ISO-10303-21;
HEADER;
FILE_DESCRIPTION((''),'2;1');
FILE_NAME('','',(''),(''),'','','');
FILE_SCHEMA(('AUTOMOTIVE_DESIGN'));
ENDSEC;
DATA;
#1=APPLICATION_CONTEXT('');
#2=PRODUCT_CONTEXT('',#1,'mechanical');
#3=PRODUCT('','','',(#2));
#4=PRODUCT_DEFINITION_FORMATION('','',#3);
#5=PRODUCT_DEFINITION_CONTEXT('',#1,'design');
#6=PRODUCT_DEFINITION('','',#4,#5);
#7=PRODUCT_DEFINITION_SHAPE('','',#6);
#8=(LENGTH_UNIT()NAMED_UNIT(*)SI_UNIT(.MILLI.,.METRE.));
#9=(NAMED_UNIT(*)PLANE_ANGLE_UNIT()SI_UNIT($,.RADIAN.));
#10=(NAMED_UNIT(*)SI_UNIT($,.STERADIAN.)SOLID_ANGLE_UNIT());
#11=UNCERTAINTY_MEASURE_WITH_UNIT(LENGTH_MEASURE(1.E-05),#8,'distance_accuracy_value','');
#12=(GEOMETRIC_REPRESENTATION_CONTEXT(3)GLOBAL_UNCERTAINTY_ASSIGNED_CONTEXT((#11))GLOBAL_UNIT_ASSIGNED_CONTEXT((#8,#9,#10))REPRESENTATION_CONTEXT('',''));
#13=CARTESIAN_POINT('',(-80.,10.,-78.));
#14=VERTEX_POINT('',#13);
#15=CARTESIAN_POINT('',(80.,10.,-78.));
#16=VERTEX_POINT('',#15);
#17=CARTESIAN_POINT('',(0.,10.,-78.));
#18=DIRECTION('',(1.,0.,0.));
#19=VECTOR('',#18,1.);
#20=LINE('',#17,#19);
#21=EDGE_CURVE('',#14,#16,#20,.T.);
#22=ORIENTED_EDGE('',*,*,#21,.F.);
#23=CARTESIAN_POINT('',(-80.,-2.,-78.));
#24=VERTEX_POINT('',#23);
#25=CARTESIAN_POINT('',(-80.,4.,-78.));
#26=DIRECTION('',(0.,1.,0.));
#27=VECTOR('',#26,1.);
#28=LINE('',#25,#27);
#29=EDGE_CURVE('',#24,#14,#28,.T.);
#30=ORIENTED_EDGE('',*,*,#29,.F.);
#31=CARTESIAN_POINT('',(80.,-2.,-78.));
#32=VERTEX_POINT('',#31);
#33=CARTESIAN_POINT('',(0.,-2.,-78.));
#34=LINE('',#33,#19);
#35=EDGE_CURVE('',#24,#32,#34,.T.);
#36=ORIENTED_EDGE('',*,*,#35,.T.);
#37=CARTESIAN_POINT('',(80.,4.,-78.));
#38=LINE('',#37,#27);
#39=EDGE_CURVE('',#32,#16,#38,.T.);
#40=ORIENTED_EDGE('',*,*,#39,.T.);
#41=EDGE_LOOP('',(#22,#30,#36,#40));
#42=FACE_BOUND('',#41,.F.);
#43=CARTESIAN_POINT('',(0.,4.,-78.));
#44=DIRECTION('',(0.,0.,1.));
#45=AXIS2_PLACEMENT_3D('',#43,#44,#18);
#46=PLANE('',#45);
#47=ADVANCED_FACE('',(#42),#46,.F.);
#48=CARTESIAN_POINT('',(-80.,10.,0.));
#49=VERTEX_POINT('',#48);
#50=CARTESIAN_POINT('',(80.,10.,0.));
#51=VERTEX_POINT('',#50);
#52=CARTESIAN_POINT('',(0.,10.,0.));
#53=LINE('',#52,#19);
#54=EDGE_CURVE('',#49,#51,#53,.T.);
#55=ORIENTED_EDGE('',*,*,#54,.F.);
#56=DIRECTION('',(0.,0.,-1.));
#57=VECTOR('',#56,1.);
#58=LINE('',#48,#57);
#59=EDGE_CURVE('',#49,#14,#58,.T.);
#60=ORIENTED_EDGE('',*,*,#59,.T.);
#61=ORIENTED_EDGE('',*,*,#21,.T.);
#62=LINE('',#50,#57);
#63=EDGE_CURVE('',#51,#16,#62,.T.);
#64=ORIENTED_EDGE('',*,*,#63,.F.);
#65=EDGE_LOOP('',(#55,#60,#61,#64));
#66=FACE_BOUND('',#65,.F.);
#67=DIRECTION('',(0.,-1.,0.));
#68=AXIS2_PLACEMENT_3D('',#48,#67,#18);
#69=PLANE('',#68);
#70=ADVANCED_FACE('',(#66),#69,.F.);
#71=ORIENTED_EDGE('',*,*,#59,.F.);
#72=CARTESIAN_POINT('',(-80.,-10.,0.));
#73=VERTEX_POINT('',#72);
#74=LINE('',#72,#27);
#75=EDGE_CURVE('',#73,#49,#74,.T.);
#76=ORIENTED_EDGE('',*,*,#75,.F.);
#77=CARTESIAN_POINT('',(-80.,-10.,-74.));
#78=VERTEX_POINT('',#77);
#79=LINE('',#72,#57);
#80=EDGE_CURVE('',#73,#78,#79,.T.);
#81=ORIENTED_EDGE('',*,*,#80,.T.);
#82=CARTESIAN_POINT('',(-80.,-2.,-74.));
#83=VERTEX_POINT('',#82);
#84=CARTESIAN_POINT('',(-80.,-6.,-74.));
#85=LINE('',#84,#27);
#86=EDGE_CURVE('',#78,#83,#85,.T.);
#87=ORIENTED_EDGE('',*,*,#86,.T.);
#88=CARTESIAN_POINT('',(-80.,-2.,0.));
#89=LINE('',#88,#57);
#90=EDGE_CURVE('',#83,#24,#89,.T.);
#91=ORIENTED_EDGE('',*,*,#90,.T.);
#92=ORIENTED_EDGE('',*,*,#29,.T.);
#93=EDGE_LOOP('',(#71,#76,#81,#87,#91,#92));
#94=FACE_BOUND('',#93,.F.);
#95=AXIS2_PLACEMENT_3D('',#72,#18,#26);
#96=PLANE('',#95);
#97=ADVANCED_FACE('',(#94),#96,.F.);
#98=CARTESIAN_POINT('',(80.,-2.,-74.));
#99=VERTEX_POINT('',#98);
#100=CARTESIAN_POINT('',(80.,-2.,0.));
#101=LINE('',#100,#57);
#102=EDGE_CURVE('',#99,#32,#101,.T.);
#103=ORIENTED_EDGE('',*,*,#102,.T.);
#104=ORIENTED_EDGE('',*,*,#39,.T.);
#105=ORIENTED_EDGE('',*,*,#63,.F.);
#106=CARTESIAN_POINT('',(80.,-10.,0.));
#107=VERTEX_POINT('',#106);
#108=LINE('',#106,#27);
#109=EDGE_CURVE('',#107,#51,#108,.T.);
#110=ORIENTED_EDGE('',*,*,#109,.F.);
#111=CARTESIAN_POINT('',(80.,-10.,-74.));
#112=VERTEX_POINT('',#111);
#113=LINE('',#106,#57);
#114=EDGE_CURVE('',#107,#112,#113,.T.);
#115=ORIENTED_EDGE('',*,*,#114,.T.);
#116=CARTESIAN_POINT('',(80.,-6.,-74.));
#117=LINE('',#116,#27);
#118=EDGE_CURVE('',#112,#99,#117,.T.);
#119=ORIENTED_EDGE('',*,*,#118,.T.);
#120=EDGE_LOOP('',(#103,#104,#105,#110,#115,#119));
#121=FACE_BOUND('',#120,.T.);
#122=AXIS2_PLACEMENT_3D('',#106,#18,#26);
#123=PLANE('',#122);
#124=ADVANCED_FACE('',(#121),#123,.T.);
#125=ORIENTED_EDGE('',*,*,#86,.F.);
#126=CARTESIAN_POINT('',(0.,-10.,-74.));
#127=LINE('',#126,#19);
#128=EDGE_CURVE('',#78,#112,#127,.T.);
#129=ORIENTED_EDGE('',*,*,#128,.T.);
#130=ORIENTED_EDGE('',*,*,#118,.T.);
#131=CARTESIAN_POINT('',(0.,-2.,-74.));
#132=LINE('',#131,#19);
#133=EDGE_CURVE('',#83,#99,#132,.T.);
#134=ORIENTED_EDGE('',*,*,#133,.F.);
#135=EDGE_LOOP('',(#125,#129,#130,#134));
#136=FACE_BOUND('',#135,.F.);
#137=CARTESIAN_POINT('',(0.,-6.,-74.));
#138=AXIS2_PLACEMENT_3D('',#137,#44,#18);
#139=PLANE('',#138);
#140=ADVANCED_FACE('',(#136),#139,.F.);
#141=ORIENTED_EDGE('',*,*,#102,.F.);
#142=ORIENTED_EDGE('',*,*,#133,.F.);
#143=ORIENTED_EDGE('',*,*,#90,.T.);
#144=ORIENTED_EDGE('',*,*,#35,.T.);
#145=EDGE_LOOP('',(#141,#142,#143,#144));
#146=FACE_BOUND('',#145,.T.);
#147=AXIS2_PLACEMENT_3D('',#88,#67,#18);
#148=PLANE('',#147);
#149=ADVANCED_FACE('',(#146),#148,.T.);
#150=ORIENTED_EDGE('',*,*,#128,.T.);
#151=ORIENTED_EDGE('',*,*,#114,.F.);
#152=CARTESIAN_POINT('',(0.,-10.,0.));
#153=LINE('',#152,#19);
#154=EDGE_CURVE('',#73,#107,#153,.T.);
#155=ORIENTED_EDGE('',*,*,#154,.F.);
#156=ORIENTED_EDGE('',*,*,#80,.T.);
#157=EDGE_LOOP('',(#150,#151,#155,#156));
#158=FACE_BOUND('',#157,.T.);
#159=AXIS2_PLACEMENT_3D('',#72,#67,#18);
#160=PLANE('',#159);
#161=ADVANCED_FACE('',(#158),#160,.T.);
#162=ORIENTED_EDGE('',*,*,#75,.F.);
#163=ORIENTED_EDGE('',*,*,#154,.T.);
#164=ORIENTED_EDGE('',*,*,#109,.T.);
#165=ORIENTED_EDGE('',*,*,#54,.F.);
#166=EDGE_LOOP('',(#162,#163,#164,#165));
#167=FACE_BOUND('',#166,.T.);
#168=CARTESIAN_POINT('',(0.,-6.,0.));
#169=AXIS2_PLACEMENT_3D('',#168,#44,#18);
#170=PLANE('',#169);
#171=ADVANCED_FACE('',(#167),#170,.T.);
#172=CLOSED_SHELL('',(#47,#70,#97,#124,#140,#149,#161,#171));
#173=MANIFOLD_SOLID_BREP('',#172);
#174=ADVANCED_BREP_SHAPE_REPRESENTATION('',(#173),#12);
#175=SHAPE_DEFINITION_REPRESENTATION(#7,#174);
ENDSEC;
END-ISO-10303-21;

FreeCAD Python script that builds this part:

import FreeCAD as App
import Part
import Sketcher

V = App.Vector

doc = App.newDocument("Part")
body = doc.addObject("PartDesign::Body", "Body")

# Sketch on XY plane
sketch1 = doc.addObject("Sketcher::SketchObject", "Sketch")
body.addObject(sketch1)
sketch1.AttachmentSupport = (doc.XY_Plane, [""])
sketch1.MapMode = "FlatFace"
sketch1.addGeometry([
    Part.LineSegment(V(-80, 10, 0), V(-80, -2, 0)),
    Part.LineSegment(V(-80, -2, 0), V(80, -2, 0)),
    Part.LineSegment(V(80, -2, 0), V(80, 10, 0)),
    Part.LineSegment(V(80, 10, 0), V(-80, 10, 0)),
], False)
sketch1.addConstraint([
    Sketcher.Constraint("Coincident", 0, 2, 1, 1),
    Sketcher.Constraint("Coincident", 1, 2, 2, 1),
    Sketcher.Constraint("Coincident", 2, 2, 3, 1),
    Sketcher.Constraint("Coincident", 3, 2, 0, 1),
    Sketcher.Constraint("Vertical", 0),
    Sketcher.Constraint("Horizontal", 1),
    Sketcher.Constraint("Vertical", 2),
    Sketcher.Constraint("Horizontal", 3),
    Sketcher.Constraint("DistanceX", 1, 1, 1, 2, 160.0),
    Sketcher.Constraint("DistanceY", 0, 2, 0, 1, 12.0),
    Sketcher.Constraint("DistanceX", 0, 2, -1, 1, 80.0),
    Sketcher.Constraint("DistanceY", 0, 2, -1, 1, 2.0),
])
pad1 = doc.addObject("PartDesign::Pad", "Pad")
body.addObject(pad1)
pad1.Profile = sketch1
pad1.Length = 78
pad1.Reversed = True

# Sketch on XY plane
sketch2 = doc.addObject("Sketcher::SketchObject", "Sketch001")
body.addObject(sketch2)
sketch2.AttachmentSupport = (doc.XY_Plane, [""])
sketch2.MapMode = "FlatFace"
sketch2.addGeometry([
    Part.LineSegment(V(-80, -2, 0), V(-80, -10, 0)),
    Part.LineSegment(V(-80, -10, 0), V(80, -10, 0)),
    Part.LineSegment(V(80, -10, 0), V(80, -2, 0)),
    Part.LineSegment(V(80, -2, 0), V(-80, -2, 0)),
], False)
sketch2.addConstraint([
    Sketcher.Constraint("Coincident", 0, 2, 1, 1),
    Sketcher.Constraint("Coincident", 1, 2, 2, 1),
    Sketcher.Constraint("Coincident", 2, 2, 3, 1),
    Sketcher.Constraint("Coincident", 3, 2, 0, 1),
    Sketcher.Constraint("Vertical", 0),
    Sketcher.Constraint("Horizontal", 1),
    Sketcher.Constraint("Vertical", 2),
    Sketcher.Constraint("Horizontal", 3),
    Sketcher.Constraint("DistanceX", 1, 1, 1, 2, 160.0),
    Sketcher.Constraint("DistanceY", 0, 2, 0, 1, 8.0),
    Sketcher.Constraint("DistanceX", 0, 2, -1, 1, 80.0),
    Sketcher.Constraint("DistanceY", 0, 2, -1, 1, 10.0),
])
pad2 = doc.addObject("PartDesign::Pad", "Pad001")
body.addObject(pad2)
pad2.Profile = sketch2
pad2.Length = 74
pad2.Reversed = True

doc.recompute()
